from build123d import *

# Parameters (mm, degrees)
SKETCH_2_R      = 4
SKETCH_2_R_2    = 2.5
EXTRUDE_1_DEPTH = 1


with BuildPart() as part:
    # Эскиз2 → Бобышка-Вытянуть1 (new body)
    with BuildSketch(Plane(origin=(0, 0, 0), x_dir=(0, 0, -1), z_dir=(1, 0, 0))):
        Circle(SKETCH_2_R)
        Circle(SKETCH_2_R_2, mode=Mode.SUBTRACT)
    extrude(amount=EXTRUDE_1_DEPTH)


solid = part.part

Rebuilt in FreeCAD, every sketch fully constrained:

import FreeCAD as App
import Part
import Sketcher
from FreeCAD import Vector

doc = App.newDocument("Part")
body = doc.addObject("PartDesign::Body", "Body")

sketch1 = body.newObject("Sketcher::SketchObject", "Sketch")
sketch1.AttachmentSupport = (doc.getObject("YZ_Plane"), [""])
sketch1.MapMode = "FlatFace"
sketch1.addGeometry([
    Part.Circle(Vector(0, 0, 0), Vector(0, 0, 1), 4),
    Part.Circle(Vector(0, 0, 0), Vector(0, 0, 1), 2.5),
], False)
sketch1.addConstraint([
    Sketcher.Constraint("Coincident", 0, 3, -1, 1),
    Sketcher.Constraint("Coincident", 1, 3, -1, 1),
    Sketcher.Constraint("Diameter", 0, 8.0),
    Sketcher.Constraint("Diameter", 1, 5.0),
])
pad1 = body.newObject("PartDesign::Pad", "Pad")
pad1.Profile = sketch1
pad1.Length = 1

doc.recompute()
